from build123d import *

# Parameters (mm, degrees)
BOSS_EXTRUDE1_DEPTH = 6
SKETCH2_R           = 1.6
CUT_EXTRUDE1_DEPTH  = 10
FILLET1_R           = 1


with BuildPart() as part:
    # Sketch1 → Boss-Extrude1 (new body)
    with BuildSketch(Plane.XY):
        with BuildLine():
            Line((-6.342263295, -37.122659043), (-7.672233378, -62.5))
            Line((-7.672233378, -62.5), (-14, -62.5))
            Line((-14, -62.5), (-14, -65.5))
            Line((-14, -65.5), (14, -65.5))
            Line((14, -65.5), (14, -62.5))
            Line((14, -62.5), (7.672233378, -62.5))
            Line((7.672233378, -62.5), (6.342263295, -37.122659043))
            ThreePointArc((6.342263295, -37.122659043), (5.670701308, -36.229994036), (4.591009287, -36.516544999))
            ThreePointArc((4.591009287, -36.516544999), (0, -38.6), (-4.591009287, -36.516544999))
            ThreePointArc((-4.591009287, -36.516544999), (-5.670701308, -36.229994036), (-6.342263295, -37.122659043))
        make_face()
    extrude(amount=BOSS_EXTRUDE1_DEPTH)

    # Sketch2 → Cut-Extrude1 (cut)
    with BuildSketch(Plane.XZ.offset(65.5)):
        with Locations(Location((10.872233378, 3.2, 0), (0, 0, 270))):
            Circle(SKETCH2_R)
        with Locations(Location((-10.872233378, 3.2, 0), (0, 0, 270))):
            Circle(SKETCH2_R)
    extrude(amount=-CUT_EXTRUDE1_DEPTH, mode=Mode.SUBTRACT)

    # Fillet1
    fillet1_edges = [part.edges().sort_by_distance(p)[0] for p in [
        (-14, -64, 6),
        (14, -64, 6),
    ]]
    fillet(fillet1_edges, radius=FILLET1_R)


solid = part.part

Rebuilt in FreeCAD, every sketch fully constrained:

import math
import FreeCAD as App
import Part
import Sketcher
from FreeCAD import Vector
Q = App.Units.Quantity


def edges_at(feature, points):
    """Names of the edges that pass closest to the given points."""
    edges = feature.Shape.Edges
    near = lambda p: min(range(len(edges)), key=lambda i: edges[i].distToShape(Part.Vertex(*p))[0])
    return sorted({f"Edge{near(p) + 1}" for p in points})

doc = App.newDocument("Part")
body = doc.addObject("PartDesign::Body", "Body")

# Sketch on XY plane
sketch1 = body.newObject("Sketcher::SketchObject", "Sketch")
sketch1.AttachmentSupport = (doc.getObject("XY_Plane"), [""])
sketch1.MapMode = "FlatFace"
sketch1.addGeometry([
    Part.LineSegment(Vector(-6.3, -37.1, 0), Vector(-7.7, -62.5, 0)),  # 0
    Part.LineSegment(Vector(-7.7, -62.5, 0), Vector(-14, -62.5, 0)),  # 1
    Part.LineSegment(Vector(-14, -62.5, 0), Vector(-14, -65.5, 0)),  # 2
    Part.LineSegment(Vector(-14, -65.5, 0), Vector(14, -65.5, 0)),  # 3
    Part.LineSegment(Vector(14, -65.5, 0), Vector(14, -62.5, 0)),  # 4
    Part.LineSegment(Vector(14, -62.5, 0), Vector(7.7, -62.5, 0)),  # 5
    Part.LineSegment(Vector(7.7, -62.5, 0), Vector(6.3, -37.1, 0)),  # 6
    Part.ArcOfCircle(Part.Circle(Vector(5.3, -37.2, 0), Vector(0, 0, 1), 1), math.radians(3), math.radians(139)),  # 7
    Part.ArcOfCircle(Part.Circle(Vector(0, -32.5, 0), Vector(0, 0, 1), 6.1), math.radians(-139), math.radians(-41)),  # 8
    Part.ArcOfCircle(Part.Circle(Vector(-5.3, -37.2, 0), Vector(0, 0, 1), 1), math.radians(41), math.radians(177)),  # 9
], False)
sketch1.addConstraint([
    Sketcher.Constraint("Coincident", 0, 2, 1, 1),
    Sketcher.Constraint("Coincident", 1, 2, 2, 1),
    Sketcher.Constraint("Coincident", 2, 2, 3, 1),
    Sketcher.Constraint("Coincident", 3, 2, 4, 1),
    Sketcher.Constraint("Coincident", 4, 2, 5, 1),
    Sketcher.Constraint("Coincident", 5, 2, 6, 1),
    Sketcher.Constraint("Tangent", 6, 2, 7, 1),
    Sketcher.Constraint("Tangent", 7, 2, 8, 2),
    Sketcher.Constraint("Tangent", 8, 1, 9, 1),
    Sketcher.Constraint("Tangent", 9, 2, 0, 1),
    Sketcher.Constraint("Horizontal", 1),
    Sketcher.Constraint("Vertical", 2),
    Sketcher.Constraint("Horizontal", 3),
    Sketcher.Constraint("Vertical", 4),
    Sketcher.Constraint("Horizontal", 5),
    Sketcher.Constraint("Equal", 7, 9),
    Sketcher.Constraint("Symmetric", 7, 3, 9, 3, -2),
    Sketcher.Constraint("Symmetric", 1, 2, 4, 2, -2),
    Sketcher.Constraint("Horizontal", 6, 2, 9, 2),
    Sketcher.Constraint("Radius", 7, Q("1 mm")),
    Sketcher.Constraint("Radius", 8, Q("6.1 mm")),
    Sketcher.Constraint("DistanceX", 3, 1, 3, 2, Q("28 mm")),
    Sketcher.Constraint("DistanceY", 2, 2, 2, 1, Q("3 mm")),
    Sketcher.Constraint("Angle", 0, Q("-93 deg")),
    Sketcher.Constraint("DistanceY", 0, 2, 8, 3, Q("30 mm")),
    Sketcher.Constraint("DistanceY", 8, 3, -1, 1, Q("32.5 mm")),
    Sketcher.Constraint("DistanceX", 0, 2, 9, 3, Q("2.3286 mm")),
])
pad1 = body.newObject("PartDesign::Pad", "Pad")
pad1.Profile = sketch1
pad1.Length = 6

# Sketch on XZ plane
sketch2 = body.newObject("Sketcher::SketchObject", "Sketch001")
sketch2.AttachmentSupport = (doc.getObject("XZ_Plane"), [""])
sketch2.MapMode = "FlatFace"
sketch2.AttachmentOffset = App.Placement(Vector(0, 0, 65.5), App.Rotation())
sketch2.addGeometry([
    Part.Circle(Vector(10.9, 3.2, 0), Vector(0, 0, 1), 1.6),
    Part.Circle(Vector(-10.9, 3.2, 0), Vector(0, 0, 1), 1.6),
], False)
sketch2.addConstraint([
    Sketcher.Constraint("Equal", 0, 1),
    Sketcher.Constraint("Symmetric", 0, 3, 1, 3, -2),
    Sketcher.Constraint("Diameter", 0, Q("3.2 mm")),
    Sketcher.Constraint("DistanceY", -1, 1, 0, 3, Q("3.2 mm")),
    Sketcher.Constraint("DistanceX", -1, 1, 0, 3, Q("10.872233 mm")),
])
pocket1 = body.newObject("PartDesign::Pocket", "Pocket")
pocket1.Profile = sketch2
pocket1.Length = 10
doc.recompute()

fillet = body.newObject("PartDesign::Fillet", "Fillet")
fillet.Base = (pocket1, edges_at(pocket1, [(-14, -64, 6), (14, -64, 6)]))
fillet.Radius = 1

doc.recompute()
